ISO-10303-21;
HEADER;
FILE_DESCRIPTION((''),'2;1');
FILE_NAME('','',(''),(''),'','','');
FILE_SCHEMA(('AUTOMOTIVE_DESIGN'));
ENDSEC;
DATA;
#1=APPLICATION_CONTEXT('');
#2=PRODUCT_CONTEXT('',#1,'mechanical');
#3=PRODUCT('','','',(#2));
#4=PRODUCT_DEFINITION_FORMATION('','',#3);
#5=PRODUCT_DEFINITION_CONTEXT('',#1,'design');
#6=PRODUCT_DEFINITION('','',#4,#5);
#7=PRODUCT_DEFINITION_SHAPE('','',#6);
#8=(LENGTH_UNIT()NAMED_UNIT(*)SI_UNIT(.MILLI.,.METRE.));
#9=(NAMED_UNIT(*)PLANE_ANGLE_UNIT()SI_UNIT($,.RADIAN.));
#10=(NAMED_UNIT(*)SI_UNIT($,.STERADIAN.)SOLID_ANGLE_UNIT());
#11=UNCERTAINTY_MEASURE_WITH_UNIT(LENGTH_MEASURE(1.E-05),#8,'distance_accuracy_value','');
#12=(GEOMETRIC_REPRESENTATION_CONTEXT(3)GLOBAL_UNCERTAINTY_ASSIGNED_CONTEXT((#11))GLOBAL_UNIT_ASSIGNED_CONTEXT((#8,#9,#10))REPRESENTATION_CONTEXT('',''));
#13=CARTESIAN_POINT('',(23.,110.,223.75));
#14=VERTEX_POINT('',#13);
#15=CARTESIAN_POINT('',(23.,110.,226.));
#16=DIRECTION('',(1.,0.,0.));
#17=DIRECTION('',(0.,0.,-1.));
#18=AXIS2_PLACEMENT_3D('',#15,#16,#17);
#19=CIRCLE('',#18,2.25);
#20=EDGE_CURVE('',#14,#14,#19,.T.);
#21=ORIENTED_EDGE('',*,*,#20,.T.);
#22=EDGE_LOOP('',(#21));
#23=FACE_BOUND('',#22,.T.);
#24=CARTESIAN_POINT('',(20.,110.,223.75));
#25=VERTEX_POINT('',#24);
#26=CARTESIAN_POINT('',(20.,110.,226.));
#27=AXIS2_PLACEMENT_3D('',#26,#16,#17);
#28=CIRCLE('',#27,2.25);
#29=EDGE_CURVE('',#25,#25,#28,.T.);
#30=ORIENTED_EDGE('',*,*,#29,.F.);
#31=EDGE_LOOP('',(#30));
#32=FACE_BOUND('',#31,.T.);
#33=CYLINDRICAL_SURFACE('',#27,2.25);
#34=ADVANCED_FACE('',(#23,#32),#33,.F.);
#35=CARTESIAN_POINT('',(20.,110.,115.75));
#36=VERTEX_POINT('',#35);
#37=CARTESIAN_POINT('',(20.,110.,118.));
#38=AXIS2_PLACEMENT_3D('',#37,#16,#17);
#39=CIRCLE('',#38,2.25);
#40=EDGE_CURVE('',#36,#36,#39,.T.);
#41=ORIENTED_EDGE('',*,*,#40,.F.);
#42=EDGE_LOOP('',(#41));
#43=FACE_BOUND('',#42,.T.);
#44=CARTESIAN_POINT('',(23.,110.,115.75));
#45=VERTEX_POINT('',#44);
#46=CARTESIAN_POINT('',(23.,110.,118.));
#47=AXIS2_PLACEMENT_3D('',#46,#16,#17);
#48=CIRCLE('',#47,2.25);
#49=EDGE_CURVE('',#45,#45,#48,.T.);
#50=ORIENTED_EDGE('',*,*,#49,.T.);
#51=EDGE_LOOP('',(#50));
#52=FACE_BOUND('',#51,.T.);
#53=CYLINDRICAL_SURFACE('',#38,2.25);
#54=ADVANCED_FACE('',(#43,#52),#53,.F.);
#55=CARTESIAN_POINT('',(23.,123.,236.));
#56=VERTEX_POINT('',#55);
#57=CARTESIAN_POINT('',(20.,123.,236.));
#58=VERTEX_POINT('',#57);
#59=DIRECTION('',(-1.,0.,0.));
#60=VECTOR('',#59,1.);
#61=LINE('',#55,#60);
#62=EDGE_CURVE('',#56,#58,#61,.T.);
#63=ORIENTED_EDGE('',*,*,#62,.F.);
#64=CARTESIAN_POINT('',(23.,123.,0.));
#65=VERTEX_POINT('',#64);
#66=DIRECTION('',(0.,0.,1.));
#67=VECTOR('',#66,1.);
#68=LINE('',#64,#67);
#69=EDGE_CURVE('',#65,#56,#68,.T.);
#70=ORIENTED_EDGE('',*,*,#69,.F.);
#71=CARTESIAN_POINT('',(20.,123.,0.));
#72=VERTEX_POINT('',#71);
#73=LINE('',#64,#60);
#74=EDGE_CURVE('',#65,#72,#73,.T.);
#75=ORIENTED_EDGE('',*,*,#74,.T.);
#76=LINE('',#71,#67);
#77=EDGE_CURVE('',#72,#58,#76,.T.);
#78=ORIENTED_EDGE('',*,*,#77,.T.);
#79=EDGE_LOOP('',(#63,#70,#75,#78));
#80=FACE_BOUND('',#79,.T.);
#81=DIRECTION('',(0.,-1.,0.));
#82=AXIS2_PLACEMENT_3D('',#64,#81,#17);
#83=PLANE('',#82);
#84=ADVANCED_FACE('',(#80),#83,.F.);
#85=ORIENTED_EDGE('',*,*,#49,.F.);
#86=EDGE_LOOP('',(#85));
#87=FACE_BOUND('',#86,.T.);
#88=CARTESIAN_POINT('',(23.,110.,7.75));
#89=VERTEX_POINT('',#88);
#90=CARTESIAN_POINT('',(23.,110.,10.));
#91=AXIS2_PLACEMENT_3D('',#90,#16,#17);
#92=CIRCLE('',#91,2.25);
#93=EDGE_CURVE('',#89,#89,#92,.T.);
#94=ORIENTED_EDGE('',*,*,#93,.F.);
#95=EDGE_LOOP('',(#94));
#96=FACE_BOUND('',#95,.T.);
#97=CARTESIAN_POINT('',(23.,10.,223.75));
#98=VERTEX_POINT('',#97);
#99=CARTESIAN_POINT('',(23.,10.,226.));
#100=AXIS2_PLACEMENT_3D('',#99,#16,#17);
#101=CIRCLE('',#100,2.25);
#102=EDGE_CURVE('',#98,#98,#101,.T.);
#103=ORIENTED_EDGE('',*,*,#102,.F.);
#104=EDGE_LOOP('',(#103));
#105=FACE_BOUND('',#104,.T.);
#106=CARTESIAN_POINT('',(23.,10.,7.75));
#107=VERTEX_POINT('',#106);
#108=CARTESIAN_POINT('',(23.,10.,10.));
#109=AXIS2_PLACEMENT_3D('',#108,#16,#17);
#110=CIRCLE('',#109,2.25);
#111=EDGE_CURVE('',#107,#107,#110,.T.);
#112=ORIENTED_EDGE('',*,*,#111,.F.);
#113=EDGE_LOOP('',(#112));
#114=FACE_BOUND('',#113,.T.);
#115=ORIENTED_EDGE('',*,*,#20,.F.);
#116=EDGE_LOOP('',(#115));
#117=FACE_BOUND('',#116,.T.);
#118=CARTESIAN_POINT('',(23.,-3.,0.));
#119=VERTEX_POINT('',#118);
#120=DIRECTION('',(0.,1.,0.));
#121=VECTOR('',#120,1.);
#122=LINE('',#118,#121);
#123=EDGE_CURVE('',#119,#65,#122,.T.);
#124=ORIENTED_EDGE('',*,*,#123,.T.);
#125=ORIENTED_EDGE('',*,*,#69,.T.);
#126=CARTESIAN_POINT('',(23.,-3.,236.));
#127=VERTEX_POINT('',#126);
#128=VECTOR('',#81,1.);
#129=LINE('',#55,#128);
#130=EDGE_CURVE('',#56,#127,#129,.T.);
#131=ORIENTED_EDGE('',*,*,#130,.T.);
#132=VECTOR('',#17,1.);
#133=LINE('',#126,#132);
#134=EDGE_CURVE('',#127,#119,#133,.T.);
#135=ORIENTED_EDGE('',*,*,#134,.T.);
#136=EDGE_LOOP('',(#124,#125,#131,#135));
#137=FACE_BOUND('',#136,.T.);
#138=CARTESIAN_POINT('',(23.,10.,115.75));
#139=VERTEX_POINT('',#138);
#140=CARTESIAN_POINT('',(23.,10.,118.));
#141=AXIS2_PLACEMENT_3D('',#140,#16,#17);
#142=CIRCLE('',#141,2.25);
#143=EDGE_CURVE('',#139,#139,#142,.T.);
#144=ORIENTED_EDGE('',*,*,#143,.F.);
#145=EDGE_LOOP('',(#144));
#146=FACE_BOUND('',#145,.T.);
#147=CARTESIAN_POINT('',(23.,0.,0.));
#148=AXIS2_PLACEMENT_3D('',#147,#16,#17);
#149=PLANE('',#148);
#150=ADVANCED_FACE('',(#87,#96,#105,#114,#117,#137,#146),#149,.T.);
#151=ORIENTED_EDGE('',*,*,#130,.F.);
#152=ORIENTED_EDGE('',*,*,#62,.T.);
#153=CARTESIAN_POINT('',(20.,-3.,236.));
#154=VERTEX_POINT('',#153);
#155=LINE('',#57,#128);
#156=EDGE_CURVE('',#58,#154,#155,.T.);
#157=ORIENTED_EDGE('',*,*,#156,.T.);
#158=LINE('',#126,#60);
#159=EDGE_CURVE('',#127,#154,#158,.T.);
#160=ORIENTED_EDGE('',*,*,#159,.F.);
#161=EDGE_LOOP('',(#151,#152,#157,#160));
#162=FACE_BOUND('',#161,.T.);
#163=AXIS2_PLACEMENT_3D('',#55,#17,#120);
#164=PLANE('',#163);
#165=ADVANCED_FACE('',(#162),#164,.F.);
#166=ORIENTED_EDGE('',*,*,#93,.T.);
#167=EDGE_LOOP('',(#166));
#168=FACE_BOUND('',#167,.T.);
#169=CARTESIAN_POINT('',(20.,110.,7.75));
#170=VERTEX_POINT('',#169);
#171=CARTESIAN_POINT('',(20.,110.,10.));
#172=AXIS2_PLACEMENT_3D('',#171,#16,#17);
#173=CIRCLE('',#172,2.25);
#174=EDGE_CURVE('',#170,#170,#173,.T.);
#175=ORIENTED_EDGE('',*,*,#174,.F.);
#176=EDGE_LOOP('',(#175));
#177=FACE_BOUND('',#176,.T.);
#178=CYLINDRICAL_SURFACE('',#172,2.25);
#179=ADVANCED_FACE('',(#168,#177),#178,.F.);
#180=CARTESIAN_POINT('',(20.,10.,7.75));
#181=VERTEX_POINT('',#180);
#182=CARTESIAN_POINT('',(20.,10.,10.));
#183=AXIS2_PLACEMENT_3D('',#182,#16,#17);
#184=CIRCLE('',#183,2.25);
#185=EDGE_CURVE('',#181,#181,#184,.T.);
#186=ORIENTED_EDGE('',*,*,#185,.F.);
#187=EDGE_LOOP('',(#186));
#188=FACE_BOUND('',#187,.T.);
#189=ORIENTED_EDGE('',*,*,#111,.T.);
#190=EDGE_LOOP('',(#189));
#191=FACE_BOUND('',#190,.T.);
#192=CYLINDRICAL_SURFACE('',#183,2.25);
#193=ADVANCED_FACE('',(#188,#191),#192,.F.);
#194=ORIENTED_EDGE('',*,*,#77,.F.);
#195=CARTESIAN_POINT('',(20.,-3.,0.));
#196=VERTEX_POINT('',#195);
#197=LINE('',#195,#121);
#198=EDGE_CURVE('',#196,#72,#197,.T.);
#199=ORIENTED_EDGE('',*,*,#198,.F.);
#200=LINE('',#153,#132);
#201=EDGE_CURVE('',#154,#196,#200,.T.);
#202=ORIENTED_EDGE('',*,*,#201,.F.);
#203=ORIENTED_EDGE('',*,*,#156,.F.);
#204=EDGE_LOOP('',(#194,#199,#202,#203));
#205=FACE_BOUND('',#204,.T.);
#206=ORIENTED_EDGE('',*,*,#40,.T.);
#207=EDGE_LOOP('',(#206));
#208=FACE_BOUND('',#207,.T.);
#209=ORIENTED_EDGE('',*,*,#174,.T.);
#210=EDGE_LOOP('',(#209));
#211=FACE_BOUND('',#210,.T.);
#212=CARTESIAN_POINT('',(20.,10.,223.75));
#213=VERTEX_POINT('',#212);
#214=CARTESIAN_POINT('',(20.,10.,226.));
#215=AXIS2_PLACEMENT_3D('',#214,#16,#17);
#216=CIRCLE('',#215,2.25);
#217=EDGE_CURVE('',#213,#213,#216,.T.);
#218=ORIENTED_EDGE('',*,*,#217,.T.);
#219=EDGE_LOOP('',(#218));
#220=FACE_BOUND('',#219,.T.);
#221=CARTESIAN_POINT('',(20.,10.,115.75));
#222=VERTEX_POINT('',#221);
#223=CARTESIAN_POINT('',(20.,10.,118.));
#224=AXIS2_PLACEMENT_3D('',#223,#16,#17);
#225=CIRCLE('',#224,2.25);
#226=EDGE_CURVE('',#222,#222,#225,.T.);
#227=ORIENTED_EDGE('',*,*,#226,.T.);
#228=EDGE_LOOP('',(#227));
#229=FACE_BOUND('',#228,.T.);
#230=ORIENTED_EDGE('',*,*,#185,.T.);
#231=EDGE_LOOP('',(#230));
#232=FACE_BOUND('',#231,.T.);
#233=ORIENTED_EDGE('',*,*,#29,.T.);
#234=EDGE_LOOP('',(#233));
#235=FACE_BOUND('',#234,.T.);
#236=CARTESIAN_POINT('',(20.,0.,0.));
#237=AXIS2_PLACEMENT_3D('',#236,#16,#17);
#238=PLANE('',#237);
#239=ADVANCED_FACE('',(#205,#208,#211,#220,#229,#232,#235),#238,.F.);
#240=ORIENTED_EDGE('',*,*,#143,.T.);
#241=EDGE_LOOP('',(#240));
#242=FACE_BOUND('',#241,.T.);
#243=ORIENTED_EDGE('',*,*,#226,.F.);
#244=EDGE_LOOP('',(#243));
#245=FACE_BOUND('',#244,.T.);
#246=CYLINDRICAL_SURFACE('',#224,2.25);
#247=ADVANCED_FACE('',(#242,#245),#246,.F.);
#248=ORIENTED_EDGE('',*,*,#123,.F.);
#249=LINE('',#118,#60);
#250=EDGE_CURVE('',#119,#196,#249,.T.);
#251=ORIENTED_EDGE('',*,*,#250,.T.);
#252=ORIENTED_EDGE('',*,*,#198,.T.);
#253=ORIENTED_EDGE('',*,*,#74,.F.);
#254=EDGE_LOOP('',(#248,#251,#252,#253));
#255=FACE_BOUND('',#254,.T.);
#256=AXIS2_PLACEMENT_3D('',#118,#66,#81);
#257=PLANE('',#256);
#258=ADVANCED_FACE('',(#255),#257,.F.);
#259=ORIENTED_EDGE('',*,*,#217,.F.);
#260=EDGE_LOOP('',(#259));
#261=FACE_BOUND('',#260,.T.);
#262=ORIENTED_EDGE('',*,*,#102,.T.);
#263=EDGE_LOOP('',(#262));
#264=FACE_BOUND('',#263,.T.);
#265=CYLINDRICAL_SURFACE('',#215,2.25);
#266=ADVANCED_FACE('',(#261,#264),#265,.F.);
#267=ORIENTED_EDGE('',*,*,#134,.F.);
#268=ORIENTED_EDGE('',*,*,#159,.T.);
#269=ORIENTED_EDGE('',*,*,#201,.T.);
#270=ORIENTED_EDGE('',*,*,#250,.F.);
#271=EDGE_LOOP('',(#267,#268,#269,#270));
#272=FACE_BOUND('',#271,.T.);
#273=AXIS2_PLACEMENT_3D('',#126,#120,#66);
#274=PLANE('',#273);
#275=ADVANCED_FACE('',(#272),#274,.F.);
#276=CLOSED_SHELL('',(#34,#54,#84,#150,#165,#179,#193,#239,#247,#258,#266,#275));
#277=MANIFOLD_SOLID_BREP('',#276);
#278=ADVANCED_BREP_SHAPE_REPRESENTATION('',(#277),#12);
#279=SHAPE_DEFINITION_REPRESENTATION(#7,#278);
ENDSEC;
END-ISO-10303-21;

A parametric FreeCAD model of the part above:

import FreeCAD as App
import Part
import Sketcher

V = App.Vector
Q = App.Units.Quantity


def add_polygon(sketch, points):
    """Adds a closed chain of lines whose ends are joined by coincident constraints."""
    first, n = sketch.GeometryCount, len(points)
    for a, b in zip(points, points[1:] + points[:1]):
        sketch.addGeometry(Part.LineSegment(App.Vector(*a, 0), App.Vector(*b, 0)), False)
    for i in range(n):
        sketch.addConstraint(Sketcher.Constraint("Coincident", first + i, 2, first + (i + 1) % n, 1))

doc = App.newDocument("Part")
body = doc.addObject("PartDesign::Body", "Body")

# Sketch on YZ plane
sketch1 = doc.addObject("Sketcher::SketchObject", "Sketch")
body.addObject(sketch1)
sketch1.AttachmentSupport = (doc.YZ_Plane, [""])
sketch1.MapMode = "FlatFace"
sketch1.AttachmentOffset = App.Placement(V(0, 0, 20), App.Rotation())
add_polygon(sketch1, [(123, 236), (-3, 236), (-3, 0), (123, 0)])  # lines 0-3
sketch1.addConstraint(Sketcher.Constraint("Horizontal", 0))
sketch1.addConstraint(Sketcher.Constraint("Vertical", 1))
sketch1.addConstraint(Sketcher.Constraint("Horizontal", 2))
sketch1.addConstraint(Sketcher.Constraint("Vertical", 3))
sketch1.addConstraint(Sketcher.Constraint("PointOnObject", 1, 2, -1))
sketch1.addConstraint(Sketcher.Constraint("DistanceX", 0, 2, 0, 1, Q("126 mm")))
sketch1.addConstraint(Sketcher.Constraint("DistanceY", 1, 2, 1, 1, Q("236 mm")))
sketch1.addConstraint(Sketcher.Constraint("DistanceX", 0, 2, -1, 1, Q("3 mm")))
pad1 = doc.addObject("PartDesign::Pad", "Pad")
body.addObject(pad1)
pad1.Profile = sketch1
pad1.Length = 3

# Sketch on YZ plane
sketch2 = doc.addObject("Sketcher::SketchObject", "Sketch001")
body.addObject(sketch2)
sketch2.AttachmentSupport = (doc.YZ_Plane, [""])
sketch2.MapMode = "FlatFace"
sketch2.AttachmentOffset = App.Placement(V(0, 0, 23), App.Rotation())
sketch2.addGeometry(Part.Circle(V(110, 10, 0), V(0, 0, 1), 2.2), False)
sketch2.addGeometry(Part.Circle(V(10, 10, 0), V(0, 0, 1), 2.2), False)
sketch2.addGeometry(Part.Circle(V(110, 226, 0), V(0, 0, 1), 2.2), False)
sketch2.addGeometry(Part.Circle(V(10, 226, 0), V(0, 0, 1), 2.2), False)
sketch2.addGeometry(Part.Circle(V(110, 118, 0), V(0, 0, 1), 2.2), False)
sketch2.addGeometry(Part.Circle(V(10, 118, 0), V(0, 0, 1), 2.2), False)
sketch2.addConstraint(Sketcher.Constraint("Equal", 0, 1))
sketch2.addConstraint(Sketcher.Constraint("Equal", 1, 2))
sketch2.addConstraint(Sketcher.Constraint("Equal", 2, 3))
sketch2.addConstraint(Sketcher.Constraint("Equal", 3, 4))
sketch2.addConstraint(Sketcher.Constraint("Equal", 4, 5))
sketch2.addConstraint(Sketcher.Constraint("Horizontal", 0, 3, 1, 3))
sketch2.addConstraint(Sketcher.Constraint("Horizontal", 2, 3, 3, 3))
sketch2.addConstraint(Sketcher.Constraint("Horizontal", 4, 3, 5, 3))
sketch2.addConstraint(Sketcher.Constraint("Vertical", 0, 3, 2, 3))
sketch2.addConstraint(Sketcher.Constraint("Vertical", 1, 3, 3, 3))
sketch2.addConstraint(Sketcher.Constraint("Vertical", 2, 3, 4, 3))
sketch2.addConstraint(Sketcher.Constraint("Vertical", 3, 3, 5, 3))
sketch2.addConstraint(Sketcher.Constraint("Diameter", 0, Q("4.5 mm")))
sketch2.addConstraint(Sketcher.Constraint("DistanceX", -1, 1, 0, 3, Q("110 mm")))
sketch2.addConstraint(Sketcher.Constraint("DistanceY", -1, 1, 0, 3, Q("10 mm")))
sketch2.addConstraint(Sketcher.Constraint("DistanceX", -1, 1, 1, 3, Q("10 mm")))
sketch2.addConstraint(Sketcher.Constraint("DistanceY", -1, 1, 2, 3, Q("226 mm")))
sketch2.addConstraint(Sketcher.Constraint("DistanceY", -1, 1, 4, 3, Q("118 mm")))
pocket1 = doc.addObject("PartDesign::Pocket", "Pocket")
body.addObject(pocket1)
pocket1.Profile = sketch2
pocket1.Type = "ThroughAll"

doc.recompute()
